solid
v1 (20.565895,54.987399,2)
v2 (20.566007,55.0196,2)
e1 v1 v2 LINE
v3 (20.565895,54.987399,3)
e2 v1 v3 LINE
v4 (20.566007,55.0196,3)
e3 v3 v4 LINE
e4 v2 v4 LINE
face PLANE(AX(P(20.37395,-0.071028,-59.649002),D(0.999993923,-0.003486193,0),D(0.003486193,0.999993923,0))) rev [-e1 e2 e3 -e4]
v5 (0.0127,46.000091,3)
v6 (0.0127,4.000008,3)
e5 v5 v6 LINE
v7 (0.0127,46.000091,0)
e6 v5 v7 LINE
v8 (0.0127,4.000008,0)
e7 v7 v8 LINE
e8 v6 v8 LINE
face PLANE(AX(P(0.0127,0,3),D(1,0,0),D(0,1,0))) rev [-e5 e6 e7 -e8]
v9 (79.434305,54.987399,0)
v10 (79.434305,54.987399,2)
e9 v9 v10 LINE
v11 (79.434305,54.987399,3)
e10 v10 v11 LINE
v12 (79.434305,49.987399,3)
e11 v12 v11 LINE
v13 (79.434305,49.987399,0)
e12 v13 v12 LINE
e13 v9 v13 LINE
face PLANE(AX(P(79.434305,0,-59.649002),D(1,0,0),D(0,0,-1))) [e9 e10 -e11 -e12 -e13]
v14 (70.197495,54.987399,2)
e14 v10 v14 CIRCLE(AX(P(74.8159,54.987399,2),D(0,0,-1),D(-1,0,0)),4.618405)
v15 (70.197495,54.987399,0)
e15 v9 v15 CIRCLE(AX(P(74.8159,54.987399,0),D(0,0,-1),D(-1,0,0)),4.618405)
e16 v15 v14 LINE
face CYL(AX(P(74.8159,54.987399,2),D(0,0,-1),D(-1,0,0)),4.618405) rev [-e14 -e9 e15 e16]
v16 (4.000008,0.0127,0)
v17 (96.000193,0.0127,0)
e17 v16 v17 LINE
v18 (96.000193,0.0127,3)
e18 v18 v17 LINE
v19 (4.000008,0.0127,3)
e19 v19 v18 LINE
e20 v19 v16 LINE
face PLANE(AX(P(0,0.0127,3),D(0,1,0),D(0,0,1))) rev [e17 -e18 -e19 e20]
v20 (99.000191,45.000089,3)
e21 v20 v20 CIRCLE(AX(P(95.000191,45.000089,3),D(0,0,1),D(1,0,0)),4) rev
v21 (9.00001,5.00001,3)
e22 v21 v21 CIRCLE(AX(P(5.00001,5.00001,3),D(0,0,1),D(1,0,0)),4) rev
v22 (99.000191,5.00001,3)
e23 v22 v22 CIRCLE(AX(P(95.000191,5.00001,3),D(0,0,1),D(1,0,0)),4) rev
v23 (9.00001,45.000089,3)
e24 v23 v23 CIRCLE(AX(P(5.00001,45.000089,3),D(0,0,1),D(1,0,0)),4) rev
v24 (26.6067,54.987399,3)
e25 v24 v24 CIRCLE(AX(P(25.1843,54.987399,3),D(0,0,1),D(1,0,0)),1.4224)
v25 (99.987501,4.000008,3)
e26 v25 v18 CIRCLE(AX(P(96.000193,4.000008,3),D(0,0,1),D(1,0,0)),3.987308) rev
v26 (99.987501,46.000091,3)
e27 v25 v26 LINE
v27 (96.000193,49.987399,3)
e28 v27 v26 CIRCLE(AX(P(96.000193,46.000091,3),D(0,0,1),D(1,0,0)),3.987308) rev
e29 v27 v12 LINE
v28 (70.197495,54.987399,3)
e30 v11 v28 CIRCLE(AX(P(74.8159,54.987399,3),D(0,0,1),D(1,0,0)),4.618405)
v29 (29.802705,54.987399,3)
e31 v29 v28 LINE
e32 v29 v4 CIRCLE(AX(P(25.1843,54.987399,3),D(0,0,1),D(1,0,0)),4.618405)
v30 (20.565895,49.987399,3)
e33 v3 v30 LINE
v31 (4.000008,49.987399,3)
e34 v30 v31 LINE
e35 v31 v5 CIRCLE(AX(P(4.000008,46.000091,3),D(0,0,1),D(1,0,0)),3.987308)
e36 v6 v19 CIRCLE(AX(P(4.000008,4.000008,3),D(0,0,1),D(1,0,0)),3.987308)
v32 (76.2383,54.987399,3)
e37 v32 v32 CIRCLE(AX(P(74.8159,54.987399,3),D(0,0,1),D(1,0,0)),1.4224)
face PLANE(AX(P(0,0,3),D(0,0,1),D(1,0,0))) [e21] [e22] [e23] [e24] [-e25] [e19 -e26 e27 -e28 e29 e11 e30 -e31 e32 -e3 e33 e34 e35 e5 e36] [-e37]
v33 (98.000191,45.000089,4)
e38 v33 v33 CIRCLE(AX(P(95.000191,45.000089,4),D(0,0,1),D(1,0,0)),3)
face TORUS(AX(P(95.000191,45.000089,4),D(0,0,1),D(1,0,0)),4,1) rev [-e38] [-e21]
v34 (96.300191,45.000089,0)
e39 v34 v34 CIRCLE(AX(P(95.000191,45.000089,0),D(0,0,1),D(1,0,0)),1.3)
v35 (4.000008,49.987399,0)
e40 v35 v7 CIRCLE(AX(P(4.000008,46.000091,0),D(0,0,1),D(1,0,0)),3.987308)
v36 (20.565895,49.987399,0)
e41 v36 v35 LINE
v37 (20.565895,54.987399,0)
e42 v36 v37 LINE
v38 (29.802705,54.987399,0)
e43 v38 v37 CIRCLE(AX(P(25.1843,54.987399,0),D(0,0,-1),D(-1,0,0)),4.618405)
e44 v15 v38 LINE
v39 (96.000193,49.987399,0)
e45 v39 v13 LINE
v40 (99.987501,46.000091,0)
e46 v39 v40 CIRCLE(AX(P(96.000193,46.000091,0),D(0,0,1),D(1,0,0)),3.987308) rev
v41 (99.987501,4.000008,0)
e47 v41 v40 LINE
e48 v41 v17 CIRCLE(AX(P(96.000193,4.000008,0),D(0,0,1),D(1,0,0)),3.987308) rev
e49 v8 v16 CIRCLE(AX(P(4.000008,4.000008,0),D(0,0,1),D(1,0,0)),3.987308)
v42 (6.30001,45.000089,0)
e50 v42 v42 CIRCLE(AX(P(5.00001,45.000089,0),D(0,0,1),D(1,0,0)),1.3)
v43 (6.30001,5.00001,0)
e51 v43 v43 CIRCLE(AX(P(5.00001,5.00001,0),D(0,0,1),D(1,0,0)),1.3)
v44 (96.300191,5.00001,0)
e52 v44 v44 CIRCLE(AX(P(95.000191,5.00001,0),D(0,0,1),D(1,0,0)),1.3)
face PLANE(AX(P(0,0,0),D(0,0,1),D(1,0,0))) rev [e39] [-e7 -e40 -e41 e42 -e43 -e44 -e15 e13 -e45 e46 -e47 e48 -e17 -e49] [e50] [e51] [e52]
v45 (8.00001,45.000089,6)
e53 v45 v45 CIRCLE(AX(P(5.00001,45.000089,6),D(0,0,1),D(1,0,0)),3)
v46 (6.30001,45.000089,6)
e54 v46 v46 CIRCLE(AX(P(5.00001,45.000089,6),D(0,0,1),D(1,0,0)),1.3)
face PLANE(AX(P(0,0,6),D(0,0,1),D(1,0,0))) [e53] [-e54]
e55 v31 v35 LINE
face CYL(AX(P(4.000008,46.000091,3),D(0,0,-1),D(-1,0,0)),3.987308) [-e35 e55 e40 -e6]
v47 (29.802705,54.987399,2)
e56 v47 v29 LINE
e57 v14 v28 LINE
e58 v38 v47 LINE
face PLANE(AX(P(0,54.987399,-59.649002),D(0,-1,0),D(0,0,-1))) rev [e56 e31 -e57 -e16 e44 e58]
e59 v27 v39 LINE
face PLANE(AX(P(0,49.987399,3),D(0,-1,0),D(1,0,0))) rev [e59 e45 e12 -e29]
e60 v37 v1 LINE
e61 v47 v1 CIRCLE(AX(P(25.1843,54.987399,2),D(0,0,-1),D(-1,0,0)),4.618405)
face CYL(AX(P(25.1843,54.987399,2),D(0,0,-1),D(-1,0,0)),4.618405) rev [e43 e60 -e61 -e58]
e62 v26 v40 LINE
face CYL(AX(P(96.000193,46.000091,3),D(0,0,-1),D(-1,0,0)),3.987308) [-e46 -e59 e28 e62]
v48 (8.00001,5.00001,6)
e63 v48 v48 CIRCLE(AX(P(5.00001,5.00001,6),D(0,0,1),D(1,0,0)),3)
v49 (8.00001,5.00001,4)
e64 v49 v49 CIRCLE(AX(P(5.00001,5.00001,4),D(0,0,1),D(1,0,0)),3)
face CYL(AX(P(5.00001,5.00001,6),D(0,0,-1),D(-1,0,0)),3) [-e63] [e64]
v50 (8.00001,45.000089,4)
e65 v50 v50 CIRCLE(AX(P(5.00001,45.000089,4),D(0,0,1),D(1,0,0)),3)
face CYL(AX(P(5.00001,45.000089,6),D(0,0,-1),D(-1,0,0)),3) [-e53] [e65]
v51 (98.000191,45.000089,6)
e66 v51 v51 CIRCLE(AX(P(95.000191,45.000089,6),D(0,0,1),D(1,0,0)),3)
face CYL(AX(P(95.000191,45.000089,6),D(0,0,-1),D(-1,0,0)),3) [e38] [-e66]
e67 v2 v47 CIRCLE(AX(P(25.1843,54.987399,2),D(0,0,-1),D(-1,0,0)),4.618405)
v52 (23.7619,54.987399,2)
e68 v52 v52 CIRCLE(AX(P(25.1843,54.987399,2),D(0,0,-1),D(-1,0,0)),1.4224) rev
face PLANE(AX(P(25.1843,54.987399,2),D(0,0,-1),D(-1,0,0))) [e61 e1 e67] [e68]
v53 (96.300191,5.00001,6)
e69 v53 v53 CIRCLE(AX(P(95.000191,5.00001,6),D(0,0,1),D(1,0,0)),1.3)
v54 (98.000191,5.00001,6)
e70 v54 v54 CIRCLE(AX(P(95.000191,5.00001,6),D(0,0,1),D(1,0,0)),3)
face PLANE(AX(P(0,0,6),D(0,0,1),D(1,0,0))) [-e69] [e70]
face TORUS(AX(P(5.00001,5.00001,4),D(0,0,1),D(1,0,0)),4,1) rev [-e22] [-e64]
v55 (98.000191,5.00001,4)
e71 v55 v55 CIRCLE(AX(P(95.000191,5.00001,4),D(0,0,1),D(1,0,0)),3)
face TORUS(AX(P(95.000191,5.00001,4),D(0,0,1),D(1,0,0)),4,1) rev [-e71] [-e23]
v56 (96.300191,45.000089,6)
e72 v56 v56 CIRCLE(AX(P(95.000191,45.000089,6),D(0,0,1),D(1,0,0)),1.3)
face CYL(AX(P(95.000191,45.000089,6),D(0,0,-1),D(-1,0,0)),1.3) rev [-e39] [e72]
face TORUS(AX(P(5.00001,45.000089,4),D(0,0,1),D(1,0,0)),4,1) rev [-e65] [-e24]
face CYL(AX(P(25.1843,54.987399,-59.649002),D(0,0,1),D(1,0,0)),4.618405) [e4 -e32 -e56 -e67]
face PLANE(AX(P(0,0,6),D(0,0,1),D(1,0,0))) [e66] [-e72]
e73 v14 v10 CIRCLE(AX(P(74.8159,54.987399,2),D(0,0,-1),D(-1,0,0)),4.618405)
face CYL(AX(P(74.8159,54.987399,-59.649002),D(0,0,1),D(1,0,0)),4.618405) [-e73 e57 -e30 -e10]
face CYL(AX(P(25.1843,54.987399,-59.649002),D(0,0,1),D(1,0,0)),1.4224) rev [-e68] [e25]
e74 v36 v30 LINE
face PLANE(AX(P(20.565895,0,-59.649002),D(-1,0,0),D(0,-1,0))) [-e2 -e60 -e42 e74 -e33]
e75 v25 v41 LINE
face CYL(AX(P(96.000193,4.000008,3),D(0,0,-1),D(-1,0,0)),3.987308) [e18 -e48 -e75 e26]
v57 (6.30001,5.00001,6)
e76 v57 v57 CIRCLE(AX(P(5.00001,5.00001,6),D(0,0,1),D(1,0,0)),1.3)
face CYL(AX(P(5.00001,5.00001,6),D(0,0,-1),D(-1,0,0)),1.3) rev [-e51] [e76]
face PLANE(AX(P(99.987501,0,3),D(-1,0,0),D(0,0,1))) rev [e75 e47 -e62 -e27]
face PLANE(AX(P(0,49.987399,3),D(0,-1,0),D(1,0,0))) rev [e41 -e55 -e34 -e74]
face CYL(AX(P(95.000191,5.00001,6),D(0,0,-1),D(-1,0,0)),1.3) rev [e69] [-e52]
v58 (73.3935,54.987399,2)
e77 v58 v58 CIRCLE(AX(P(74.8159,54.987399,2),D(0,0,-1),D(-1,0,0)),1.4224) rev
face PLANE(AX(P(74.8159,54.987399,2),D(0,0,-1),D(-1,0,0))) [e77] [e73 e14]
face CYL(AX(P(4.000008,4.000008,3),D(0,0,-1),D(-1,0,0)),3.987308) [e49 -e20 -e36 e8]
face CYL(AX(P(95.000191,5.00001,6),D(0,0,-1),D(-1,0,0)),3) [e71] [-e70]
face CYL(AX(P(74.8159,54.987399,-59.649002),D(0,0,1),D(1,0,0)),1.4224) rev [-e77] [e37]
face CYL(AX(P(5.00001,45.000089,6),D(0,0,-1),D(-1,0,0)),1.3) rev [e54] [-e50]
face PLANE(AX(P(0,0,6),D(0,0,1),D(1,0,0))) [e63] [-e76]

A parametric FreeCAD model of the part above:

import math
import FreeCAD as App
import Part
import Sketcher
Q = App.Units.Quantity


def edges_at(feature, points):
    """Names of the edges that pass closest to the given points."""
    edges = feature.Shape.Edges
    near = lambda p: min(range(len(edges)), key=lambda i: edges[i].distToShape(Part.Vertex(*p))[0])
    return sorted({f"Edge{near(p) + 1}" for p in points})

doc = App.newDocument("Part")
params = doc.addObject("Spreadsheet::Sheet", "Params")
for row, (alias, value) in enumerate([
    ("sketch1_diameter", "6 mm"),
    ("pad1_length", "3 mm"),
    ("sketch2_diameter", "6 mm"),
    ("sketch2_diameter2", "2.6 mm"),
    ("pad2_length", "6 mm"),
    ("fillet_radius", "1 mm"),
    ("sketch3_height", "5 mm"),
    ("pad3_length", "3 mm"),
    ("pocket1_length", "2 mm"),
], start=1):
    params.set(f"A{row}", alias)
    params.set(f"B{row}", "=" + value)
    params.setAlias(f"B{row}", alias)

body = doc.addObject("PartDesign::Body", "Body")

# Sketch on XY plane
sketch1 = body.newObject("Sketcher::SketchObject", "Sketch")
sketch1.AttachmentSupport = (doc.getObject("XY_Plane"), [""])
sketch1.MapMode = "FlatFace"
sketch1.addGeometry(Part.ArcOfCircle(Part.Circle(App.Vector(96, 4, 0), App.Vector(0, 0, 1), 4), math.radians(-90), math.radians(0)), False)
sketch1.addGeometry(Part.LineSegment(App.Vector(100, 4, 0), App.Vector(100, 46, 0)), False)
sketch1.addGeometry(Part.ArcOfCircle(Part.Circle(App.Vector(96, 46, 0), App.Vector(0, 0, 1), 4), math.radians(0), math.radians(90)), False)
sketch1.addGeometry(Part.LineSegment(App.Vector(96, 50, 0), App.Vector(4, 50, 0)), False)
sketch1.addGeometry(Part.ArcOfCircle(Part.Circle(App.Vector(4, 46, 0), App.Vector(0, 0, 1), 4), math.radians(90), math.radians(180)), False)
sketch1.addGeometry(Part.LineSegment(App.Vector(0, 46, 0), App.Vector(0, 4, 0)), False)
sketch1.addGeometry(Part.ArcOfCircle(Part.Circle(App.Vector(4, 4, 0), App.Vector(0, 0, 1), 4), math.radians(180), math.radians(270)), False)
sketch1.addGeometry(Part.LineSegment(App.Vector(4, 0, 0), App.Vector(96, 0, 0)), False)
sketch1.addGeometry(Part.Circle(App.Vector(95, 5, 0), App.Vector(0, 0, 1), 3), False)
sketch1.addGeometry(Part.Circle(App.Vector(5, 5, 0), App.Vector(0, 0, 1), 3), False)
sketch1.addGeometry(Part.Circle(App.Vector(95, 45, 0), App.Vector(0, 0, 1), 3), False)
sketch1.addGeometry(Part.Circle(App.Vector(5, 45, 0), App.Vector(0, 0, 1), 3), False)
sketch1.addConstraint(Sketcher.Constraint("Tangent", 0, 2, 1, 1))
sketch1.addConstraint(Sketcher.Constraint("Tangent", 1, 2, 2, 1))
sketch1.addConstraint(Sketcher.Constraint("Tangent", 2, 2, 3, 1))
sketch1.addConstraint(Sketcher.Constraint("Tangent", 3, 2, 4, 1))
sketch1.addConstraint(Sketcher.Constraint("Tangent", 4, 2, 5, 1))
sketch1.addConstraint(Sketcher.Constraint("Tangent", 5, 2, 6, 1))
sketch1.addConstraint(Sketcher.Constraint("Tangent", 6, 2, 7, 1))
sketch1.addConstraint(Sketcher.Constraint("Tangent", 7, 2, 0, 1))
sketch1.addConstraint(Sketcher.Constraint("Vertical", 1))
sketch1.addConstraint(Sketcher.Constraint("Horizontal", 3))
sketch1.addConstraint(Sketcher.Constraint("Vertical", 5))
sketch1.addConstraint(Sketcher.Constraint("Horizontal", 7))
sketch1.addConstraint(Sketcher.Constraint("Equal", 0, 2))
sketch1.addConstraint(Sketcher.Constraint("Equal", 2, 4))
sketch1.addConstraint(Sketcher.Constraint("Equal", 4, 6))
sketch1.addConstraint(Sketcher.Constraint("Equal", 8, 9))
sketch1.addConstraint(Sketcher.Constraint("Equal", 9, 10))
sketch1.addConstraint(Sketcher.Constraint("Equal", 10, 11))
sketch1.addConstraint(Sketcher.Constraint("Horizontal", 8, 3, 9, 3))
sketch1.addConstraint(Sketcher.Constraint("Horizontal", 10, 3, 11, 3))
sketch1.addConstraint(Sketcher.Constraint("Vertical", 8, 3, 10, 3))
sketch1.addConstraint(Sketcher.Constraint("Vertical", 9, 3, 11, 3))
sketch1.addConstraint(Sketcher.Constraint("Diameter", 8, Q("6 mm")))
sketch1.addConstraint(Sketcher.Constraint("Radius", 0, Q("3.987308 mm")))
sketch1.addConstraint(Sketcher.Constraint("DistanceX", -1, 1, 0, 2, Q("99.987501 mm")))
sketch1.addConstraint(Sketcher.Constraint("DistanceY", -1, 1, 2, 2, Q("49.987399 mm")))
sketch1.addConstraint(Sketcher.Constraint("DistanceX", -1, 1, 4, 2, Q("0.0127 mm")))
sketch1.addConstraint(Sketcher.Constraint("DistanceY", -1, 1, 6, 2, Q("0.0127 mm")))
sketch1.addConstraint(Sketcher.Constraint("DistanceX", -1, 1, 8, 3, Q("95.000191 mm")))
sketch1.addConstraint(Sketcher.Constraint("DistanceY", -1, 1, 8, 3, Q("5.00001 mm")))
sketch1.addConstraint(Sketcher.Constraint("DistanceX", -1, 1, 9, 3, Q("5.00001 mm")))
sketch1.addConstraint(Sketcher.Constraint("DistanceY", -1, 1, 10, 3, Q("45.000089 mm")))
sketch1.setExpression("Constraints[22]", "Params.sketch1_diameter")
pad1 = body.newObject("PartDesign::Pad", "Pad")
pad1.Profile = sketch1
pad1.setExpression("Length", "Params.pad1_length")

# Sketch on XY plane
sketch2 = body.newObject("Sketcher::SketchObject", "Sketch001")
sketch2.AttachmentSupport = (doc.getObject("XY_Plane"), [""])
sketch2.MapMode = "FlatFace"
sketch2.addGeometry(Part.Circle(App.Vector(5, 45, 0), App.Vector(0, 0, 1), 3), False)
sketch2.addGeometry(Part.Circle(App.Vector(5, 45, 0), App.Vector(0, 0, 1), 1.3), False)
sketch2.addGeometry(Part.Circle(App.Vector(95, 45, 0), App.Vector(0, 0, 1), 3), False)
sketch2.addGeometry(Part.Circle(App.Vector(95, 45, 0), App.Vector(0, 0, 1), 1.3), False)
sketch2.addGeometry(Part.Circle(App.Vector(95, 5, 0), App.Vector(0, 0, 1), 3), False)
sketch2.addGeometry(Part.Circle(App.Vector(95, 5, 0), App.Vector(0, 0, 1), 1.3), False)
sketch2.addGeometry(Part.Circle(App.Vector(5, 5, 0), App.Vector(0, 0, 1), 3), False)
sketch2.addGeometry(Part.Circle(App.Vector(5, 5, 0), App.Vector(0, 0, 1), 1.3), False)
sketch2.addConstraint(Sketcher.Constraint("Coincident", 1, 3, 0, 3))
sketch2.addConstraint(Sketcher.Constraint("Coincident", 3, 3, 2, 3))
sketch2.addConstraint(Sketcher.Constraint("Coincident", 5, 3, 4, 3))
sketch2.addConstraint(Sketcher.Constraint("Coincident", 7, 3, 6, 3))
sketch2.addConstraint(Sketcher.Constraint("Equal", 0, 2))
sketch2.addConstraint(Sketcher.Constraint("Equal", 1, 3))
sketch2.addConstraint(Sketcher.Constraint("Equal", 2, 4))
sketch2.addConstraint(Sketcher.Constraint("Equal", 3, 5))
sketch2.addConstraint(Sketcher.Constraint("Equal", 4, 6))
sketch2.addConstraint(Sketcher.Constraint("Equal", 5, 7))
sketch2.addConstraint(Sketcher.Constraint("Horizontal", 1, 3, 2, 3))
sketch2.addConstraint(Sketcher.Constraint("Horizontal", 5, 3, 6, 3))
sketch2.addConstraint(Sketcher.Constraint("Vertical", 3, 3, 4, 3))
sketch2.addConstraint(Sketcher.Constraint("Vertical", 1, 3, 6, 3))
sketch2.addConstraint(Sketcher.Constraint("Diameter", 0, Q("6 mm")))
sketch2.addConstraint(Sketcher.Constraint("Diameter", 1, Q("2.6 mm")))
sketch2.addConstraint(Sketcher.Constraint("DistanceX", -1, 1, 0, 3, Q("5.00001 mm")))
sketch2.addConstraint(Sketcher.Constraint("DistanceY", -1, 1, 0, 3, Q("45.000089 mm")))
sketch2.addConstraint(Sketcher.Constraint("DistanceX", -1, 1, 2, 3, Q("95.000191 mm")))
sketch2.addConstraint(Sketcher.Constraint("DistanceY", -1, 1, 4, 3, Q("5.00001 mm")))
sketch2.setExpression("Constraints[14]", "Params.sketch2_diameter")
sketch2.setExpression("Constraints[15]", "Params.sketch2_diameter2")
pad2 = body.newObject("PartDesign::Pad", "Pad001")
pad2.Profile = sketch2
pad2.setExpression("Length", "Params.pad2_length")
doc.recompute()

fillet = body.newObject("PartDesign::Fillet", "Fillet")
fillet.Base = (pad2, edges_at(pad2, [
    (92, 5, 3),
    (2, 5, 3),
    (92, 45, 3),
    (2, 45, 3),
]))
fillet.setExpression("Radius", "Params.fillet_radius")

# Sketch on XY plane
sketch3 = body.newObject("Sketcher::SketchObject", "Sketch002")
sketch3.AttachmentSupport = (doc.getObject("XY_Plane"), [""])
sketch3.MapMode = "FlatFace"
sketch3.AttachmentOffset = App.Placement(App.Vector(0, 0, 3), App.Rotation())
sketch3.addGeometry(Part.LineSegment(App.Vector(70.2, 55, 0), App.Vector(29.8, 55, 0)), False)
sketch3.addGeometry(Part.ArcOfCircle(Part.Circle(App.Vector(25.2, 55, 0), App.Vector(0, 0, 1), 4.6), math.radians(0), math.radians(180)), False)
sketch3.addGeometry(Part.LineSegment(App.Vector(20.6, 55, 0), App.Vector(20.6, 50, 0)), False)
sketch3.addGeometry(Part.LineSegment(App.Vector(20.6, 50, 0), App.Vector(79.4, 50, 0)), False)
sketch3.addGeometry(Part.LineSegment(App.Vector(79.4, 50, 0), App.Vector(79.4, 55, 0)), False)
sketch3.addGeometry(Part.ArcOfCircle(Part.Circle(App.Vector(74.8, 55, 0), App.Vector(0, 0, 1), 4.6), math.radians(0), math.radians(180)), False)
sketch3.addGeometry(Part.Circle(App.Vector(25.2, 55, 0), App.Vector(0, 0, 1), 1.4), False)
sketch3.addGeometry(Part.Circle(App.Vector(74.8, 55, 0), App.Vector(0, 0, 1), 1.4), False)
sketch3.addConstraint(Sketcher.Constraint("Coincident", 0, 2, 1, 1))
sketch3.addConstraint(Sketcher.Constraint("Tangent", 1, 2, 2, 1))
sketch3.addConstraint(Sketcher.Constraint("Coincident", 2, 2, 3, 1))
sketch3.addConstraint(Sketcher.Constraint("Coincident", 3, 2, 4, 1))
sketch3.addConstraint(Sketcher.Constraint("Tangent", 4, 2, 5, 1))
sketch3.addConstraint(Sketcher.Constraint("Coincident", 5, 2, 0, 1))
sketch3.addConstraint(Sketcher.Constraint("Horizontal", 0))
sketch3.addConstraint(Sketcher.Constraint("Vertical", 2))
sketch3.addConstraint(Sketcher.Constraint("Horizontal", 3))
sketch3.addConstraint(Sketcher.Constraint("Vertical", 4))
sketch3.addConstraint(Sketcher.Constraint("Coincident", 6, 3, 1, 3))
sketch3.addConstraint(Sketcher.Constraint("Coincident", 7, 3, 5, 3))
sketch3.addConstraint(Sketcher.Constraint("Equal", 1, 5))
sketch3.addConstraint(Sketcher.Constraint("Equal", 6, 7))
sketch3.addConstraint(Sketcher.Constraint("Horizontal", 1, 3, 5, 3))
sketch3.addConstraint(Sketcher.Constraint("Horizontal", 7, 3, 0, 2))
sketch3.addConstraint(Sketcher.Constraint("DistanceY", 2, 2, 2, 1, Q("5 mm")))
sketch3.addConstraint(Sketcher.Constraint("Diameter", 6, Q("2.8448 mm")))
sketch3.addConstraint(Sketcher.Constraint("Radius", 1, Q("4.618405 mm")))
sketch3.addConstraint(Sketcher.Constraint("DistanceX", 0, 2, 0, 1, Q("40.39479 mm")))
sketch3.addConstraint(Sketcher.Constraint("DistanceX", -1, 1, 1, 3, Q("25.1843 mm")))
sketch3.addConstraint(Sketcher.Constraint("DistanceY", -1, 1, 1, 3, Q("54.987399 mm")))
sketch3.setExpression("Constraints[16]", "Params.sketch3_height")
pad3 = body.newObject("PartDesign::Pad", "Pad002")
pad3.Profile = sketch3
pad3.setExpression("Length", "Params.pad3_length")
pad3.Reversed = True

# Sketch on XY plane
sketch4 = body.newObject("Sketcher::SketchObject", "Sketch003")
sketch4.AttachmentSupport = (doc.getObject("XY_Plane"), [""])
sketch4.MapMode = "FlatFace"
sketch4.AttachmentOffset = App.Placement(App.Vector(0, 0, 2), App.Rotation())
sketch4.addGeometry(Part.Circle(App.Vector(74.8, 55, 0), App.Vector(0, 0, 1), 4.6), False)
sketch4.addGeometry(Part.Circle(App.Vector(25.2, 55, 0), App.Vector(0, 0, 1), 4.6), False)
sketch4.addConstraint(Sketcher.Constraint("Equal", 0, 1))
sketch4.addConstraint(Sketcher.Constraint("Horizontal", 0, 3, 1, 3))
sketch4.addConstraint(Sketcher.Constraint("Diameter", 0, Q("9.23681 mm")))
sketch4.addConstraint(Sketcher.Constraint("DistanceX", -1, 1, 0, 3, Q("74.8159 mm")))
sketch4.addConstraint(Sketcher.Constraint("DistanceY", -1, 1, 0, 3, Q("54.987399 mm")))
sketch4.addConstraint(Sketcher.Constraint("DistanceX", -1, 1, 1, 3, Q("25.1843 mm")))
pocket1 = body.newObject("PartDesign::Pocket", "Pocket")
pocket1.Profile = sketch4
pocket1.setExpression("Length", "Params.pocket1_length")

doc.recompute()
